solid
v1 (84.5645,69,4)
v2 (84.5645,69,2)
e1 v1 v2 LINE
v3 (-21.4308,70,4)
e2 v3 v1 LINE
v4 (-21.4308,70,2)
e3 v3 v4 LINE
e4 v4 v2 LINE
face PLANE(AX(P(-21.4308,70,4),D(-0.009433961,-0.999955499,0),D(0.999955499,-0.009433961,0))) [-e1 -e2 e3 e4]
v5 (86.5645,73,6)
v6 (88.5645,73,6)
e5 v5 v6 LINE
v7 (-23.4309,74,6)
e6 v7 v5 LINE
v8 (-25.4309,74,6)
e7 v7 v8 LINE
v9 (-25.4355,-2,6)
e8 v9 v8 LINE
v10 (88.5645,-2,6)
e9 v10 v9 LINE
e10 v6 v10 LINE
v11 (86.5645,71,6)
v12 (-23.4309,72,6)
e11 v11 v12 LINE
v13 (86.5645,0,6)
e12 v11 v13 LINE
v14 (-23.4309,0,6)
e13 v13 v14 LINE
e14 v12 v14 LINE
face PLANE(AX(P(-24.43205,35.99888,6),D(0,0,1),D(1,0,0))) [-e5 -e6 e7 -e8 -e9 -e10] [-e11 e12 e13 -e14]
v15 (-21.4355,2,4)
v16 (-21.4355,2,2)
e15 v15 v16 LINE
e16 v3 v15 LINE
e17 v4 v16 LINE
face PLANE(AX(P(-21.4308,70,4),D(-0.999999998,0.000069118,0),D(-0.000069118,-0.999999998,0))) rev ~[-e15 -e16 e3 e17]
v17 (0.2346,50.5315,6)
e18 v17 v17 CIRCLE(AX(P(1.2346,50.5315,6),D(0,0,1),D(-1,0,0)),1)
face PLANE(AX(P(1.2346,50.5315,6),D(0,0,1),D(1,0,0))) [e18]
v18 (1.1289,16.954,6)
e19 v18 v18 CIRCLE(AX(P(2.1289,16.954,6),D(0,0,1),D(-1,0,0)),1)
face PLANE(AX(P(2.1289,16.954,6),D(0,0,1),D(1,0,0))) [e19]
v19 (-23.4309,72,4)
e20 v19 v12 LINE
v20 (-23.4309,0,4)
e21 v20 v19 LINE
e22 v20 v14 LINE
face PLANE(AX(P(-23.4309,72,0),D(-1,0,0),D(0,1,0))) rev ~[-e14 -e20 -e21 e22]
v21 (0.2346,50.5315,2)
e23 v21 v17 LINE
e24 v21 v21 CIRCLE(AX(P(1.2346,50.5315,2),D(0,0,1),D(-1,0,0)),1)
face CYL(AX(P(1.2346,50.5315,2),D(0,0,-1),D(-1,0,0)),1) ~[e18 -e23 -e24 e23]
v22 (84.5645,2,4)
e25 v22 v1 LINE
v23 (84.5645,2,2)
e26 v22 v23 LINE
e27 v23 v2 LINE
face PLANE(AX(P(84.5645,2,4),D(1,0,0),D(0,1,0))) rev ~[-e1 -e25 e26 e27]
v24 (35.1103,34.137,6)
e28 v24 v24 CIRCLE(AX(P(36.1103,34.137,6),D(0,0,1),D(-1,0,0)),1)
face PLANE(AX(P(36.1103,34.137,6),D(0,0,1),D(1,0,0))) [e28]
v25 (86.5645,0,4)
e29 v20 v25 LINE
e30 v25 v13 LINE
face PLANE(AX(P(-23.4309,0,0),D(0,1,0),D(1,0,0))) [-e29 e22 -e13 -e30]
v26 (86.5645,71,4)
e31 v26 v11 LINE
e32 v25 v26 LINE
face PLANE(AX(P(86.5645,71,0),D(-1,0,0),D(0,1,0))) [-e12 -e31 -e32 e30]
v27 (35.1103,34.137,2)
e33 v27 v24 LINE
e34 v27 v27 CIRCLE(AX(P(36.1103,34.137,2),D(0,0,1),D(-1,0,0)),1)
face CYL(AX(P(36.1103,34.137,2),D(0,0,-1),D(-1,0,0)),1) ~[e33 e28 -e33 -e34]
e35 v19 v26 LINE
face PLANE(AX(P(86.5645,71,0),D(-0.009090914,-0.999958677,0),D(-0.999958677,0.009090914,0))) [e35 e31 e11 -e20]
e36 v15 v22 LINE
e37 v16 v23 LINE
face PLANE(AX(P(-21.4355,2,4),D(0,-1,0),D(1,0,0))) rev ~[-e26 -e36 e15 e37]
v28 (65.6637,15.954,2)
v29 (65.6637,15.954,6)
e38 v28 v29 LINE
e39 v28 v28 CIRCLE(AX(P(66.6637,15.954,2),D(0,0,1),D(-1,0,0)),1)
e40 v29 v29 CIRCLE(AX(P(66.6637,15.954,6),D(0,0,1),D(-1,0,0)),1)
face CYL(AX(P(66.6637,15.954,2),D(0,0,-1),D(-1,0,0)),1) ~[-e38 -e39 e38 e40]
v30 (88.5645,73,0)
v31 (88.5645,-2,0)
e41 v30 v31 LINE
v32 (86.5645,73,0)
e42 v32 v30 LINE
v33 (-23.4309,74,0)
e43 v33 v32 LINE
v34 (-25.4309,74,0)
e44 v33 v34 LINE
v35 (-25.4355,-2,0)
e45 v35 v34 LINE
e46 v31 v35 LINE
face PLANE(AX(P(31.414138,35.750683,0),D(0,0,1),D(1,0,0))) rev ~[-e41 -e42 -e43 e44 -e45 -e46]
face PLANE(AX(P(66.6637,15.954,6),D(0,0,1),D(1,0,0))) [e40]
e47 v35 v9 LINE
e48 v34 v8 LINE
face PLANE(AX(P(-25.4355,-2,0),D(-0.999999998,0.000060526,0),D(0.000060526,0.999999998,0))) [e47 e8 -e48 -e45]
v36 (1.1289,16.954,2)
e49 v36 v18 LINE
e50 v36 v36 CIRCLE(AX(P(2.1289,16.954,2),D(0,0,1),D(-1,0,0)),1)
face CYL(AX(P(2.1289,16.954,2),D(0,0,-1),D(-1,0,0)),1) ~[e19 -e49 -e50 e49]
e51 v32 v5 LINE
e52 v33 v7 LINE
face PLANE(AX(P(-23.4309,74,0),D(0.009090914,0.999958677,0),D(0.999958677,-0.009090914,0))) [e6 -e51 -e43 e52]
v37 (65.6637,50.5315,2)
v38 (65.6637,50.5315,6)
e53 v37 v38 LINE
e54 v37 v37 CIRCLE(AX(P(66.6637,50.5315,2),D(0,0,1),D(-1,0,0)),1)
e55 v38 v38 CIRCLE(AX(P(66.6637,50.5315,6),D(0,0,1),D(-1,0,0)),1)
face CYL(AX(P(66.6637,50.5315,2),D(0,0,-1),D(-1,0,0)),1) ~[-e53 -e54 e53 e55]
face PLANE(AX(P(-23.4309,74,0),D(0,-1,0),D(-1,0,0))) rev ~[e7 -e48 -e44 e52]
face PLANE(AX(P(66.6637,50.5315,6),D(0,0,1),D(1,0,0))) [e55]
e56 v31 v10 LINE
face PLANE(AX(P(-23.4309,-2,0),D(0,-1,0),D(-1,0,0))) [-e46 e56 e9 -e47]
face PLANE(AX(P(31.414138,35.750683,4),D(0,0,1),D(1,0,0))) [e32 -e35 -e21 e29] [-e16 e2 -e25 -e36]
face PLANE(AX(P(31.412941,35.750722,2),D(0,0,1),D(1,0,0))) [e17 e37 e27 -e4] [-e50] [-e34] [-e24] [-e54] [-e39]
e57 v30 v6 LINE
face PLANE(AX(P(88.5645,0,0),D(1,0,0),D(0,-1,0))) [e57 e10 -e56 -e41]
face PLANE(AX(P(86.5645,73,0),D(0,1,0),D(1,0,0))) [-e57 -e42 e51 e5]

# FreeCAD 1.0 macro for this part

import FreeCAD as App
import Part
import Sketcher

V = App.Vector
Q = App.Units.Quantity


def add_polygon(sketch, points):
    """Adds a closed chain of lines whose ends are joined by coincident constraints."""
    first, n = sketch.GeometryCount, len(points)
    for a, b in zip(points, points[1:] + points[:1]):
        sketch.addGeometry(Part.LineSegment(App.Vector(*a, 0), App.Vector(*b, 0)), False)
    for i in range(n):
        sketch.addConstraint(Sketcher.Constraint("Coincident", first + i, 2, first + (i + 1) % n, 1))

doc = App.newDocument("Part")
body = doc.addObject("PartDesign::Body", "Body")

# Sketch on XY plane
sketch1 = body.newObject("Sketcher::SketchObject", "Sketch")
sketch1.AttachmentSupport = (doc.getObject("XY_Plane"), [""])
sketch1.MapMode = "FlatFace"
add_polygon(sketch1, [(-23.4309, 72), (-23.4355, 0), (86.5645, 0), (86.5645, 71)])  # lines 0-3
sketch1.addConstraint([
    Sketcher.Constraint("Horizontal", 1),
    Sketcher.Constraint("Vertical", 2),
    Sketcher.Constraint("PointOnObject", 0, 2, -1),
    Sketcher.Constraint("DistanceX", 1, 1, 1, 2, Q("110 mm")),
    Sketcher.Constraint("DistanceY", 2, 1, 2, 2, Q("71 mm")),
    Sketcher.Constraint("Distance", 0, Q("72 mm")),
    Sketcher.Constraint("Distance", 3, Q("110 mm")),
    Sketcher.Constraint("DistanceX", 3, 2, -1, 1, Q("23.431 mm")),
])
pad1 = body.newObject("PartDesign::Pad", "Pad")
pad1.Profile = sketch1
pad1.Length = 4

# Sketch on XY plane
sketch2 = body.newObject("Sketcher::SketchObject", "Sketch001")
sketch2.AttachmentSupport = (doc.getObject("XY_Plane"), [""])
sketch2.MapMode = "FlatFace"
sketch2.AttachmentOffset = App.Placement(V(0, 0, 4), App.Rotation())
add_polygon(sketch2, [(-21.4308, 70), (-21.4355, 2), (84.5645, 2), (84.5645, 69)])  # lines 0-3
sketch2.addConstraint([
    Sketcher.Constraint("Horizontal", 1),
    Sketcher.Constraint("Vertical", 2),
    Sketcher.Constraint("DistanceX", 1, 1, 1, 2, Q("106 mm")),
    Sketcher.Constraint("DistanceY", 2, 1, 2, 2, Q("67 mm")),
    Sketcher.Constraint("Distance", 0, Q("68 mm")),
    Sketcher.Constraint("Distance", 3, Q("106 mm")),
    Sketcher.Constraint("DistanceY", -1, 1, 0, 2, Q("2 mm")),
    Sketcher.Constraint("DistanceX", 0, 2, -1, 1, Q("21.4355 mm")),
])
pocket1 = body.newObject("PartDesign::Pocket", "Pocket")
pocket1.Profile = sketch2
pocket1.Length = 2

# Sketch on XY plane
sketch3 = body.newObject("Sketcher::SketchObject", "Sketch002")
sketch3.AttachmentSupport = (doc.getObject("XY_Plane"), [""])
sketch3.MapMode = "FlatFace"
sketch3.AttachmentOffset = App.Placement(V(0, 0, 2), App.Rotation())
sketch3.addGeometry([
    Part.Circle(V(66.6637, 15.954, 0), V(0, 0, 1), 1),  # 0
    Part.Circle(V(66.6637, 50.5315, 0), V(0, 0, 1), 1),  # 1
    Part.Circle(V(36.1103, 34.137, 0), V(0, 0, 1), 1),  # 2
    Part.Circle(V(1.2346, 50.5315, 0), V(0, 0, 1), 1),  # 3
    Part.Circle(V(2.1289, 16.954, 0), V(0, 0, 1), 1),  # 4
], False)
sketch3.addConstraint([
    Sketcher.Constraint("Equal", 0, 1),
    Sketcher.Constraint("Equal", 1, 2),
    Sketcher.Constraint("Equal", 2, 3),
    Sketcher.Constraint("Equal", 3, 4),
    Sketcher.Constraint("Horizontal", 1, 3, 3, 3),
    Sketcher.Constraint("Vertical", 0, 3, 1, 3),
    Sketcher.Constraint("Diameter", 0, Q("2 mm")),
    Sketcher.Constraint("DistanceY", 0, 3, 4, 3, Q("1 mm")),
    Sketcher.Constraint("DistanceY", -1, 1, 0, 3, Q("15.954 mm")),
    Sketcher.Constraint("DistanceY", -1, 1, 2, 3, Q("34.137 mm")),
    Sketcher.Constraint("DistanceX", -1, 1, 4, 3, Q("2.129 mm")),
    Sketcher.Constraint("DistanceX", 3, 3, 1, 3, Q("65.429 mm")),
    Sketcher.Constraint("DistanceX", -1, 1, 0, 3, Q("66.6637 mm")),
    Sketcher.Constraint("DistanceY", -1, 1, 1, 3, Q("50.5315 mm")),
    Sketcher.Constraint("DistanceX", -1, 1, 2, 3, Q("36.1103 mm")),
])
pad2 = body.newObject("PartDesign::Pad", "Pad001")
pad2.Profile = sketch3
pad2.Length = 4

# Sketch on XY plane
sketch4 = body.newObject("Sketcher::SketchObject", "Sketch003")
sketch4.AttachmentSupport = (doc.getObject("XY_Plane"), [""])
sketch4.MapMode = "FlatFace"
add_polygon(sketch4, [(-23.4309, -2), (-23.4309, 74), (-25.4309, 74), (-25.4355, -2)])  # lines 0-3
sketch4.addConstraint([
    Sketcher.Constraint("Vertical", 0),
    Sketcher.Constraint("Horizontal", 1),
    Sketcher.Constraint("Horizontal", 3),
    Sketcher.Constraint("DistanceX", 1, 2, 1, 1, Q("2 mm")),
    Sketcher.Constraint("DistanceY", 0, 1, 0, 2, Q("76 mm")),
    Sketcher.Constraint("DistanceY", -1, 1, 0, 2, Q("74 mm")),
    Sketcher.Constraint("DistanceX", 3, 1, 3, 2, Q("2.0046 mm")),
    Sketcher.Constraint("DistanceX", 0, 2, -1, 1, Q("23.431 mm")),
])
pad3 = body.newObject("PartDesign::Pad", "Pad002")
pad3.Profile = sketch4
pad3.Length = 6

# Sketch on XY plane
sketch5 = body.newObject("Sketcher::SketchObject", "Sketch004")
sketch5.AttachmentSupport = (doc.getObject("XY_Plane"), [""])
sketch5.MapMode = "FlatFace"
add_polygon(sketch5, [(88.5645, 0), (-23.4309, 0), (-23.4309, -2), (88.5645, -2)])  # lines 0-3
sketch5.addConstraint([
    Sketcher.Constraint("Horizontal", 0),
    Sketcher.Constraint("Vertical", 1),
    Sketcher.Constraint("Horizontal", 2),
    Sketcher.Constraint("Vertical", 3),
    Sketcher.Constraint("PointOnObject", 0, 2, -1),
    Sketcher.Constraint("DistanceY", 1, 2, 1, 1, Q("2 mm")),
    Sketcher.Constraint("DistanceX", 0, 2, 0, 1, Q("111.9954 mm")),
    Sketcher.Constraint("DistanceX", 0, 2, -1, 1, Q("23.431 mm")),
])
pad4 = body.newObject("PartDesign::Pad", "Pad003")
pad4.Profile = sketch5
pad4.Length = 6

# Sketch on XY plane
sketch6 = body.newObject("Sketcher::SketchObject", "Sketch005")
sketch6.AttachmentSupport = (doc.getObject("XY_Plane"), [""])
sketch6.MapMode = "FlatFace"
add_polygon(sketch6, [(86.5645, 73), (86.5645, 0), (88.5645, 0), (88.5645, 73)])  # lines 0-3
sketch6.addConstraint([
    Sketcher.Constraint("Vertical", 0),
    Sketcher.Constraint("Horizontal", 1),
    Sketcher.Constraint("Vertical", 2),
    Sketcher.Constraint("Horizontal", 3),
    Sketcher.Constraint("PointOnObject", 0, 2, -1),
    Sketcher.Constraint("DistanceX", 1, 1, 1, 2, Q("2 mm")),
    Sketcher.Constraint("DistanceY", 0, 2, 0, 1, Q("73 mm")),
    Sketcher.Constraint("DistanceX", -1, 1, 0, 2, Q("86.5645 mm")),
])
pad5 = body.newObject("PartDesign::Pad", "Pad004")
pad5.Profile = sketch6
pad5.Length = 6

# Sketch on XY plane
sketch7 = body.newObject("Sketcher::SketchObject", "Sketch006")
sketch7.AttachmentSupport = (doc.getObject("XY_Plane"), [""])
sketch7.MapMode = "FlatFace"
add_polygon(sketch7, [(86.5645, 71), (86.5645, 73), (-23.4309, 74), (-23.4309, 72)])  # lines 0-3
sketch7.addConstraint([
    Sketcher.Constraint("Vertical", 0),
    Sketcher.Constraint("Vertical", 2),
    Sketcher.Constraint("Parallel", 1, 3),
    Sketcher.Constraint("DistanceY", 0, 1, 0, 2, Q("2 mm")),
    Sketcher.Constraint("Distance", 1, Q("110 mm")),
    Sketcher.Constraint("DistanceY", -1, 1, 0, 2, Q("73 mm")),
    Sketcher.Constraint("DistanceY", -1, 1, 1, 2, Q("74 mm")),
    Sketcher.Constraint("DistanceX", 1, 2, -1, 1, Q("23.431 mm")),
])
pad6 = body.newObject("PartDesign::Pad", "Pad005")
pad6.Profile = sketch7
pad6.Length = 6

doc.recompute()
